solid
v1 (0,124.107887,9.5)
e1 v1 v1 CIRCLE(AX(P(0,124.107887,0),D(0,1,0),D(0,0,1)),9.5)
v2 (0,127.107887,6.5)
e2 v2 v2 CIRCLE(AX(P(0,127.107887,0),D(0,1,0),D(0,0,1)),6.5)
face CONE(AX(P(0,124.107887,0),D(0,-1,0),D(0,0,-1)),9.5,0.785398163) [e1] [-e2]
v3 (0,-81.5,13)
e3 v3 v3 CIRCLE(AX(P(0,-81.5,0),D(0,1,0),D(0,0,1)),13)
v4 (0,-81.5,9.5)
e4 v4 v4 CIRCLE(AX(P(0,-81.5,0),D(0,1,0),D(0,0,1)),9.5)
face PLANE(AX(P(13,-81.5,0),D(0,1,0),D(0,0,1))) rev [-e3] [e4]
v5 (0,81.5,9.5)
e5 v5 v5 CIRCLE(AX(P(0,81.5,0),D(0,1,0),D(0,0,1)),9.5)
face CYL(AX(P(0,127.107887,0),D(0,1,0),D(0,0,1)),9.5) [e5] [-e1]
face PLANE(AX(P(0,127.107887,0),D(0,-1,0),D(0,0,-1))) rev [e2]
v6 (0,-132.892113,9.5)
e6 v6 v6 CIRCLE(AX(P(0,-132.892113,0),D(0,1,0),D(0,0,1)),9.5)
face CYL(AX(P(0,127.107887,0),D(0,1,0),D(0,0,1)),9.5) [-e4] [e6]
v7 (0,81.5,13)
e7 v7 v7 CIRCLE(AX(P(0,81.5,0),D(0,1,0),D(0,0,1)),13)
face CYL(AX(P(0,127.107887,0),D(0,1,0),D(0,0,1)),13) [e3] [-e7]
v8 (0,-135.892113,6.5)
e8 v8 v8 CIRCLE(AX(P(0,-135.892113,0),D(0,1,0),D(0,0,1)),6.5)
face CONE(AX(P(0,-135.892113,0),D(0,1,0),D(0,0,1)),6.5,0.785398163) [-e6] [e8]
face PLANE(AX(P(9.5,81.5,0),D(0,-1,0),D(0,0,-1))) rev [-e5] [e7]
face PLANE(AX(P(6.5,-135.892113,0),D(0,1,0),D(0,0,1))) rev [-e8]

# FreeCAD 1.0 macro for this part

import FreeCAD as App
import Part
import Sketcher

V = App.Vector


def add_polygon(sketch, points):
    """Adds a closed chain of lines whose ends are joined by coincident constraints."""
    first, n = sketch.GeometryCount, len(points)
    for a, b in zip(points, points[1:] + points[:1]):
        sketch.addGeometry(Part.LineSegment(App.Vector(*a, 0), App.Vector(*b, 0)), False)
    for i in range(n):
        sketch.addConstraint(Sketcher.Constraint("Coincident", first + i, 2, first + (i + 1) % n, 1))

doc = App.newDocument("Part")
body = doc.addObject("PartDesign::Body", "Body")

sketch1 = body.newObject("Sketcher::SketchObject", "Sketch")
sketch1.AttachmentSupport = (doc.getObject("XY_Plane"), [""])
sketch1.MapMode = "FlatFace"
add_polygon(sketch1, [(6.5, 127.1), (0, 127.1), (0, -135.9), (6.5, -135.9), (9.5, -132.9), (9.5, -81.5), (13, -81.5), (13, 81.5), (9.5, 81.5), (9.5, 124.1)])
sketch1.addConstraint(Sketcher.Constraint("Horizontal", 0))
sketch1.addConstraint(Sketcher.Constraint("Vertical", 1))
sketch1.addConstraint(Sketcher.Constraint("Horizontal", 2))
sketch1.addConstraint(Sketcher.Constraint("Vertical", 4))
sketch1.addConstraint(Sketcher.Constraint("Horizontal", 5))
sketch1.addConstraint(Sketcher.Constraint("Vertical", 6))
sketch1.addConstraint(Sketcher.Constraint("Horizontal", 7))
sketch1.addConstraint(Sketcher.Constraint("Vertical", 8))
sketch1.addConstraint(Sketcher.Constraint("Symmetric", 4, 2, 7, 2, -1))
sketch1.addConstraint(Sketcher.Constraint("PointOnObject", 0, 2, -2))
sketch1.addConstraint(Sketcher.Constraint("Perpendicular", 3, 9))
sketch1.addConstraint(Sketcher.Constraint("Vertical", 2, 2, 9, 2))
sketch1.addConstraint(Sketcher.Constraint("Equal", 3, 9))
sketch1.addConstraint(Sketcher.Constraint("DistanceY", 1, 2, 1, 1, 263.0))
sketch1.addConstraint(Sketcher.Constraint("DistanceY", 6, 1, 6, 2, 163.0))
sketch1.addConstraint(Sketcher.Constraint("DistanceX", 0, 2, 0, 1, 6.5))
sketch1.addConstraint(Sketcher.Constraint("DistanceX", 5, 1, 5, 2, 3.5))
sketch1.addConstraint(Sketcher.Constraint("DistanceX", -1, 1, 5, 2, 13.0))
sketch1.addConstraint(Sketcher.Constraint("DistanceY", 4, 1, 4, 2, 51.392113))
revolution = body.newObject("PartDesign::Revolution", "Revolution")
revolution.Profile = sketch1
revolution.ReferenceAxis = (sketch1, ["V_Axis"])
revolution.Angle = 360

doc.recompute()
